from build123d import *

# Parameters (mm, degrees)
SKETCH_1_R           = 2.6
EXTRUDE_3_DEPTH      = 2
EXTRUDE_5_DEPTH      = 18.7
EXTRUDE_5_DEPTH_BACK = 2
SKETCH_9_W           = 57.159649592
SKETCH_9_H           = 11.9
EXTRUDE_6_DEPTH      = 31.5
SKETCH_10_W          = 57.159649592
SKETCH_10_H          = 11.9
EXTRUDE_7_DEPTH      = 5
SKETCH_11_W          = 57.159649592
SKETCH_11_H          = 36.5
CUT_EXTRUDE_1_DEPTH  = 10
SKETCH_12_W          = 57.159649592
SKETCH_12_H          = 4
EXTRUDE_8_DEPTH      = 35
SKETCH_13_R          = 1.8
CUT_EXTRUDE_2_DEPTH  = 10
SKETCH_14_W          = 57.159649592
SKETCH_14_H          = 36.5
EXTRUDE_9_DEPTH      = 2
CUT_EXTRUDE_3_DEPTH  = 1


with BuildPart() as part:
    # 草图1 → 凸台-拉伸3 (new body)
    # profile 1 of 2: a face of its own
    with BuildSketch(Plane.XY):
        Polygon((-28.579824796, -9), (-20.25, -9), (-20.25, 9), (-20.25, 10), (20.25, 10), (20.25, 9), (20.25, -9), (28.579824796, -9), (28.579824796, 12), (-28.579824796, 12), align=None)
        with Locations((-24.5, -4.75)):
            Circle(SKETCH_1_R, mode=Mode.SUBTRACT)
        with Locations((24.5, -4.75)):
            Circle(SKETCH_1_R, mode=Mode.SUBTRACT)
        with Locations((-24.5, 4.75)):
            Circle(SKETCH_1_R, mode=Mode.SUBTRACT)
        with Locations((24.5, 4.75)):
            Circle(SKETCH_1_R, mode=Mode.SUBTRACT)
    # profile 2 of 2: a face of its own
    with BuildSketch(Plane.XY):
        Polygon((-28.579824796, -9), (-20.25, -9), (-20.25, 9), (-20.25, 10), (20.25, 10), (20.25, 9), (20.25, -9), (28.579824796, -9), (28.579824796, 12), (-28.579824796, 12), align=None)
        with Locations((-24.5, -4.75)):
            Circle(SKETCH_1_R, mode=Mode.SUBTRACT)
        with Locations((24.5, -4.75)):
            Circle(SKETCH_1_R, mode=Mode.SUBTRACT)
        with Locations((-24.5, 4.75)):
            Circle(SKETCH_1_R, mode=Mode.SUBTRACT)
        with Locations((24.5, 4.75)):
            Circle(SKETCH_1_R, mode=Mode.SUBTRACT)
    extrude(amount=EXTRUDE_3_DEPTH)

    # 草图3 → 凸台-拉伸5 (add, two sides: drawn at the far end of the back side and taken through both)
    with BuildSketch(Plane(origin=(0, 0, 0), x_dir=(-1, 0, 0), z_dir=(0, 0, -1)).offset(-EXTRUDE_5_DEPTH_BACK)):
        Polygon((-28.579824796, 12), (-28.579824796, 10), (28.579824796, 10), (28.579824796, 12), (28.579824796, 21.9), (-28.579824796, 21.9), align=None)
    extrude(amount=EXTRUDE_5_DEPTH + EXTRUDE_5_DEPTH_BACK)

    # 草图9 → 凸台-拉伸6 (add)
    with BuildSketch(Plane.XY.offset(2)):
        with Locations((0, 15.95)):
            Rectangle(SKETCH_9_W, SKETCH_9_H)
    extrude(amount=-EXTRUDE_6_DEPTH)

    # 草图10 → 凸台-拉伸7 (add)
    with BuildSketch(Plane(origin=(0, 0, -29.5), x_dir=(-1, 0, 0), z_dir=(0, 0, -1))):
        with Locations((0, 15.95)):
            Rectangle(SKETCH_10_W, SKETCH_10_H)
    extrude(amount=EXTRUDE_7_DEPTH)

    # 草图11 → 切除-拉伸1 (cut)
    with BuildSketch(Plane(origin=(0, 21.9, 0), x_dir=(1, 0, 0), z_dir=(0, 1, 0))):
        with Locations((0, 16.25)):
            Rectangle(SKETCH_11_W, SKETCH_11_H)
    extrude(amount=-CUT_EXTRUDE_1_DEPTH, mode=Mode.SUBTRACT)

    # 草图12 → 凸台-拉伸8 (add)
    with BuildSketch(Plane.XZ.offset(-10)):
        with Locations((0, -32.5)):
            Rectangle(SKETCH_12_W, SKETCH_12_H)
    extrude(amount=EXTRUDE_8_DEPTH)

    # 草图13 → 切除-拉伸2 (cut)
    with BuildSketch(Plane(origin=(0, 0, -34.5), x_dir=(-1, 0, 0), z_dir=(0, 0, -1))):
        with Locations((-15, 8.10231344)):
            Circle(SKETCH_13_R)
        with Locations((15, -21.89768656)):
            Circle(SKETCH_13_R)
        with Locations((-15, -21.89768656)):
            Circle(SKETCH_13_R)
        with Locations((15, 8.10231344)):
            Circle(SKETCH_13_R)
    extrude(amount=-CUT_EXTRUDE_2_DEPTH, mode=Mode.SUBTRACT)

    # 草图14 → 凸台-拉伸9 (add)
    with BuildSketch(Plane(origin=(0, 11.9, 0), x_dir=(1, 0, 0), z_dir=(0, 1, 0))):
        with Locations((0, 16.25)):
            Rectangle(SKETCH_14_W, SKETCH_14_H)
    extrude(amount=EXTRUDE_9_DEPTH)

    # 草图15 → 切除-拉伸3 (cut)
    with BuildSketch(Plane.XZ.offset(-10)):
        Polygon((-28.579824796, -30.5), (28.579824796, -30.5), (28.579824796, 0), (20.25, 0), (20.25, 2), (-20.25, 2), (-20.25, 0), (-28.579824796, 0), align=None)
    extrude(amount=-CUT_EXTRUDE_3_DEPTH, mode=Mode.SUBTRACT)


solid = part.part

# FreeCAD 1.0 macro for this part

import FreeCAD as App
import Part
import Sketcher
Q = App.Units.Quantity

doc = App.newDocument("Part")
body = doc.addObject("PartDesign::Body", "Body")

# Sketch on XY plane
sketch1 = body.newObject("Sketcher::SketchObject", "Sketch")
sketch1.AttachmentSupport = (doc.getObject("XY_Plane"), [""])
sketch1.MapMode = "FlatFace"
sketch1.addGeometry([
    Part.LineSegment(App.Vector(-28.579825, -9, 0), App.Vector(-20.25, -9, 0)),  # 0
    Part.LineSegment(App.Vector(-20.25, -9, 0), App.Vector(-20.25, 10, 0)),  # 1
    Part.LineSegment(App.Vector(-20.25, 10, 0), App.Vector(20.25, 10, 0)),  # 2
    Part.LineSegment(App.Vector(20.25, 10, 0), App.Vector(20.25, -9, 0)),  # 3
    Part.LineSegment(App.Vector(20.25, -9, 0), App.Vector(28.579825, -9, 0)),  # 4
    Part.LineSegment(App.Vector(28.579825, -9, 0), App.Vector(28.579825, 12, 0)),  # 5
    Part.LineSegment(App.Vector(28.579825, 12, 0), App.Vector(-28.579825, 12, 0)),  # 6
    Part.LineSegment(App.Vector(-28.579825, 12, 0), App.Vector(-28.579825, -9, 0)),  # 7
    Part.Circle(App.Vector(-24.5, -4.75, 0), App.Vector(0, 0, 1), 2.6),  # 8
    Part.Circle(App.Vector(24.5, -4.75, 0), App.Vector(0, 0, 1), 2.6),  # 9
    Part.Circle(App.Vector(-24.5, 4.75, 0), App.Vector(0, 0, 1), 2.6),  # 10
    Part.Circle(App.Vector(24.5, 4.75, 0), App.Vector(0, 0, 1), 2.6),  # 11
], False)
sketch1.addConstraint([
    Sketcher.Constraint("Coincident", 0, 2, 1, 1),
    Sketcher.Constraint("Coincident", 1, 2, 2, 1),
    Sketcher.Constraint("Coincident", 2, 2, 3, 1),
    Sketcher.Constraint("Coincident", 3, 2, 4, 1),
    Sketcher.Constraint("Coincident", 4, 2, 5, 1),
    Sketcher.Constraint("Coincident", 5, 2, 6, 1),
    Sketcher.Constraint("Coincident", 6, 2, 7, 1),
    Sketcher.Constraint("Coincident", 7, 2, 0, 1),
    Sketcher.Constraint("Horizontal", 0),
    Sketcher.Constraint("Vertical", 1),
    Sketcher.Constraint("Horizontal", 2),
    Sketcher.Constraint("Vertical", 3),
    Sketcher.Constraint("Horizontal", 4),
    Sketcher.Constraint("Vertical", 5),
    Sketcher.Constraint("Horizontal", 6),
    Sketcher.Constraint("Vertical", 7),
    Sketcher.Constraint("Equal", 8, 9),
    Sketcher.Constraint("Equal", 9, 10),
    Sketcher.Constraint("Equal", 10, 11),
    Sketcher.Constraint("Symmetric", 9, 3, 10, 3, -1, 1),
    Sketcher.Constraint("Symmetric", 8, 3, 11, 3, -1, 1),
    Sketcher.Constraint("Symmetric", 8, 3, 9, 3, -2),
    Sketcher.Constraint("Symmetric", 0, 2, 3, 2, -2),
    Sketcher.Constraint("Equal", 0, 4),
    Sketcher.Constraint("Diameter", 8, Q("5.2 mm")),
    Sketcher.Constraint("DistanceY", 1, 1, 1, 2, Q("19 mm")),
    Sketcher.Constraint("DistanceY", 5, 1, 5, 2, Q("21 mm")),
    Sketcher.Constraint("DistanceX", 2, 1, 2, 2, Q("40.5 mm")),
    Sketcher.Constraint("DistanceY", 0, 2, -1, 1, Q("9 mm")),
    Sketcher.Constraint("DistanceX", 8, 3, 9, 3, Q("49 mm")),
    Sketcher.Constraint("DistanceY", 8, 3, 10, 3, Q("9.5 mm")),
    Sketcher.Constraint("DistanceX", 6, 2, 6, 1, Q("57.15965 mm")),
])
pad1 = body.newObject("PartDesign::Pad", "Pad")
pad1.Profile = sketch1
pad1.Length = 2

# Sketch on XY plane
sketch2 = body.newObject("Sketcher::SketchObject", "Sketch001")
sketch2.AttachmentSupport = (doc.getObject("XY_Plane"), [""])
sketch2.MapMode = "FlatFace"
sketch2.addGeometry([
    Part.LineSegment(App.Vector(28.579825, 10, 0), App.Vector(-28.579825, 10, 0)),
    Part.LineSegment(App.Vector(-28.579825, 10, 0), App.Vector(-28.579825, 21.9, 0)),
    Part.LineSegment(App.Vector(-28.579825, 21.9, 0), App.Vector(28.579825, 21.9, 0)),
    Part.LineSegment(App.Vector(28.579825, 21.9, 0), App.Vector(28.579825, 10, 0)),
], False)
sketch2.addConstraint([
    Sketcher.Constraint("Coincident", 0, 2, 1, 1),
    Sketcher.Constraint("Coincident", 1, 2, 2, 1),
    Sketcher.Constraint("Coincident", 2, 2, 3, 1),
    Sketcher.Constraint("Coincident", 3, 2, 0, 1),
    Sketcher.Constraint("Horizontal", 0),
    Sketcher.Constraint("Vertical", 1),
    Sketcher.Constraint("Horizontal", 2),
    Sketcher.Constraint("Vertical", 3),
    Sketcher.Constraint("DistanceY", 1, 1, 1, 2, Q("11.9 mm")),
    Sketcher.Constraint("DistanceY", -1, 1, 0, 2, Q("10 mm")),
    Sketcher.Constraint("DistanceX", 0, 2, 0, 1, Q("57.15965 mm")),
    Sketcher.Constraint("DistanceX", 0, 2, -1, 1, Q("28.579825 mm")),
])
pad2 = body.newObject("PartDesign::Pad", "Pad001")
pad2.Profile = sketch2
pad2.Type = "TwoLengths"
pad2.Length = 18.7
pad2.Length2 = 2
pad2.Reversed = True

# Sketch on XY plane
sketch3 = body.newObject("Sketcher::SketchObject", "Sketch002")
sketch3.AttachmentSupport = (doc.getObject("XY_Plane"), [""])
sketch3.MapMode = "FlatFace"
sketch3.AttachmentOffset = App.Placement(App.Vector(0, 0, 2), App.Rotation())
sketch3.addGeometry([
    Part.LineSegment(App.Vector(-28.579825, 21.9, 0), App.Vector(-28.579825, 10, 0)),
    Part.LineSegment(App.Vector(-28.579825, 10, 0), App.Vector(28.579825, 10, 0)),
    Part.LineSegment(App.Vector(28.579825, 10, 0), App.Vector(28.579825, 21.9, 0)),
    Part.LineSegment(App.Vector(28.579825, 21.9, 0), App.Vector(-28.579825, 21.9, 0)),
], False)
sketch3.addConstraint([
    Sketcher.Constraint("Coincident", 0, 2, 1, 1),
    Sketcher.Constraint("Coincident", 1, 2, 2, 1),
    Sketcher.Constraint("Coincident", 2, 2, 3, 1),
    Sketcher.Constraint("Coincident", 3, 2, 0, 1),
    Sketcher.Constraint("Vertical", 0),
    Sketcher.Constraint("Horizontal", 1),
    Sketcher.Constraint("Vertical", 2),
    Sketcher.Constraint("Horizontal", 3),
    Sketcher.Constraint("DistanceY", 0, 2, 0, 1, Q("11.9 mm")),
    Sketcher.Constraint("DistanceY", -1, 1, 0, 2, Q("10 mm")),
    Sketcher.Constraint("DistanceX", 1, 1, 1, 2, Q("57.15965 mm")),
    Sketcher.Constraint("DistanceX", 0, 2, -1, 1, Q("28.579825 mm")),
])
pad3 = body.newObject("PartDesign::Pad", "Pad002")
pad3.Profile = sketch3
pad3.Length = 31.5
pad3.Reversed = True

# Sketch on XY plane
sketch4 = body.newObject("Sketcher::SketchObject", "Sketch003")
sketch4.AttachmentSupport = (doc.getObject("XY_Plane"), [""])
sketch4.MapMode = "FlatFace"
sketch4.AttachmentOffset = App.Placement(App.Vector(0, 0, -29.5), App.Rotation())
sketch4.addGeometry([
    Part.LineSegment(App.Vector(28.579825, 21.9, 0), App.Vector(28.579825, 10, 0)),
    Part.LineSegment(App.Vector(28.579825, 10, 0), App.Vector(-28.579825, 10, 0)),
    Part.LineSegment(App.Vector(-28.579825, 10, 0), App.Vector(-28.579825, 21.9, 0)),
    Part.LineSegment(App.Vector(-28.579825, 21.9, 0), App.Vector(28.579825, 21.9, 0)),
], False)
sketch4.addConstraint([
    Sketcher.Constraint("Coincident", 0, 2, 1, 1),
    Sketcher.Constraint("Coincident", 1, 2, 2, 1),
    Sketcher.Constraint("Coincident", 2, 2, 3, 1),
    Sketcher.Constraint("Coincident", 3, 2, 0, 1),
    Sketcher.Constraint("Vertical", 0),
    Sketcher.Constraint("Horizontal", 1),
    Sketcher.Constraint("Vertical", 2),
    Sketcher.Constraint("Horizontal", 3),
    Sketcher.Constraint("DistanceY", 0, 2, 0, 1, Q("11.9 mm")),
    Sketcher.Constraint("DistanceY", -1, 1, 0, 2, Q("10 mm")),
    Sketcher.Constraint("DistanceX", 1, 2, 1, 1, Q("57.15965 mm")),
    Sketcher.Constraint("DistanceX", -1, 1, 0, 2, Q("28.579825 mm")),
])
pad4 = body.newObject("PartDesign::Pad", "Pad003")
pad4.Profile = sketch4
pad4.Length = 5
pad4.Reversed = True

# Sketch on XZ plane
sketch5 = body.newObject("Sketcher::SketchObject", "Sketch004")
sketch5.AttachmentSupport = (doc.getObject("XZ_Plane"), [""])
sketch5.MapMode = "FlatFace"
sketch5.AttachmentOffset = App.Placement(App.Vector(0, 0, -21.9), App.Rotation())
sketch5.addGeometry([
    Part.LineSegment(App.Vector(-28.579825, -34.5, 0), App.Vector(-28.579825, 2, 0)),
    Part.LineSegment(App.Vector(-28.579825, 2, 0), App.Vector(28.579825, 2, 0)),
    Part.LineSegment(App.Vector(28.579825, 2, 0), App.Vector(28.579825, -34.5, 0)),
    Part.LineSegment(App.Vector(28.579825, -34.5, 0), App.Vector(-28.579825, -34.5, 0)),
], False)
sketch5.addConstraint([
    Sketcher.Constraint("Coincident", 0, 2, 1, 1),
    Sketcher.Constraint("Coincident", 1, 2, 2, 1),
    Sketcher.Constraint("Coincident", 2, 2, 3, 1),
    Sketcher.Constraint("Coincident", 3, 2, 0, 1),
    Sketcher.Constraint("Vertical", 0),
    Sketcher.Constraint("Horizontal", 1),
    Sketcher.Constraint("Vertical", 2),
    Sketcher.Constraint("Horizontal", 3),
    Sketcher.Constraint("DistanceY", 0, 1, 0, 2, Q("36.5 mm")),
    Sketcher.Constraint("DistanceY", -1, 1, 0, 2, Q("2 mm")),
    Sketcher.Constraint("DistanceX", 1, 1, 1, 2, Q("57.15965 mm")),
    Sketcher.Constraint("DistanceX", 0, 2, -1, 1, Q("28.579825 mm")),
])
pocket1 = body.newObject("PartDesign::Pocket", "Pocket")
pocket1.Profile = sketch5
pocket1.Length = 10
pocket1.Reversed = True

# Sketch on XZ plane
sketch6 = body.newObject("Sketcher::SketchObject", "Sketch005")
sketch6.AttachmentSupport = (doc.getObject("XZ_Plane"), [""])
sketch6.MapMode = "FlatFace"
sketch6.AttachmentOffset = App.Placement(App.Vector(0, 0, -10), App.Rotation())
sketch6.addGeometry([
    Part.LineSegment(App.Vector(-28.579825, -30.5, 0), App.Vector(-28.579825, -34.5, 0)),
    Part.LineSegment(App.Vector(-28.579825, -34.5, 0), App.Vector(28.579825, -34.5, 0)),
    Part.LineSegment(App.Vector(28.579825, -34.5, 0), App.Vector(28.579825, -30.5, 0)),
    Part.LineSegment(App.Vector(28.579825, -30.5, 0), App.Vector(-28.579825, -30.5, 0)),
], False)
sketch6.addConstraint([
    Sketcher.Constraint("Coincident", 0, 2, 1, 1),
    Sketcher.Constraint("Coincident", 1, 2, 2, 1),
    Sketcher.Constraint("Coincident", 2, 2, 3, 1),
    Sketcher.Constraint("Coincident", 3, 2, 0, 1),
    Sketcher.Constraint("Vertical", 0),
    Sketcher.Constraint("Horizontal", 1),
    Sketcher.Constraint("Vertical", 2),
    Sketcher.Constraint("Horizontal", 3),
    Sketcher.Constraint("DistanceY", 0, 2, 0, 1, Q("4 mm")),
    Sketcher.Constraint("DistanceY", 0, 2, -1, 1, Q("34.5 mm")),
    Sketcher.Constraint("DistanceX", 1, 1, 1, 2, Q("57.15965 mm")),
    Sketcher.Constraint("DistanceX", 0, 2, -1, 1, Q("28.579825 mm")),
])
pad5 = body.newObject("PartDesign::Pad", "Pad004")
pad5.Profile = sketch6
pad5.Length = 35

# Sketch on XY plane
sketch7 = body.newObject("Sketcher::SketchObject", "Sketch006")
sketch7.AttachmentSupport = (doc.getObject("XY_Plane"), [""])
sketch7.MapMode = "FlatFace"
sketch7.AttachmentOffset = App.Placement(App.Vector(0, 0, -34.5), App.Rotation())
sketch7.addGeometry([
    Part.Circle(App.Vector(15, 8.102313, 0), App.Vector(0, 0, 1), 1.8),
    Part.Circle(App.Vector(-15, -21.897687, 0), App.Vector(0, 0, 1), 1.8),
    Part.Circle(App.Vector(15, -21.897687, 0), App.Vector(0, 0, 1), 1.8),
    Part.Circle(App.Vector(-15, 8.102313, 0), App.Vector(0, 0, 1), 1.8),
], False)
sketch7.addConstraint([
    Sketcher.Constraint("Equal", 0, 1),
    Sketcher.Constraint("Equal", 1, 2),
    Sketcher.Constraint("Equal", 2, 3),
    Sketcher.Constraint("Symmetric", 1, 3, 2, 3, -2),
    Sketcher.Constraint("Symmetric", 0, 3, 3, 3, -2),
    Sketcher.Constraint("Vertical", 0, 3, 2, 3),
    Sketcher.Constraint("Diameter", 0, Q("3.6 mm")),
    Sketcher.Constraint("DistanceX", -1, 1, 0, 3, Q("15 mm")),
    Sketcher.Constraint("DistanceY", 1, 3, 0, 3, Q("30 mm")),
    Sketcher.Constraint("DistanceY", -1, 1, 0, 3, Q("8.102313 mm")),
])
pocket2 = body.newObject("PartDesign::Pocket", "Pocket001")
pocket2.Profile = sketch7
pocket2.Length = 10
pocket2.Reversed = True

# Sketch on XZ plane
sketch8 = body.newObject("Sketcher::SketchObject", "Sketch007")
sketch8.AttachmentSupport = (doc.getObject("XZ_Plane"), [""])
sketch8.MapMode = "FlatFace"
sketch8.AttachmentOffset = App.Placement(App.Vector(0, 0, -11.9), App.Rotation())
sketch8.addGeometry([
    Part.LineSegment(App.Vector(-28.579825, -34.5, 0), App.Vector(-28.579825, 2, 0)),
    Part.LineSegment(App.Vector(-28.579825, 2, 0), App.Vector(28.579825, 2, 0)),
    Part.LineSegment(App.Vector(28.579825, 2, 0), App.Vector(28.579825, -34.5, 0)),
    Part.LineSegment(App.Vector(28.579825, -34.5, 0), App.Vector(-28.579825, -34.5, 0)),
], False)
sketch8.addConstraint([
    Sketcher.Constraint("Coincident", 0, 2, 1, 1),
    Sketcher.Constraint("Coincident", 1, 2, 2, 1),
    Sketcher.Constraint("Coincident", 2, 2, 3, 1),
    Sketcher.Constraint("Coincident", 3, 2, 0, 1),
    Sketcher.Constraint("Vertical", 0),
    Sketcher.Constraint("Horizontal", 1),
    Sketcher.Constraint("Vertical", 2),
    Sketcher.Constraint("Horizontal", 3),
    Sketcher.Constraint("DistanceY", 0, 1, 0, 2, Q("36.5 mm")),
    Sketcher.Constraint("DistanceY", -1, 1, 0, 2, Q("2 mm")),
    Sketcher.Constraint("DistanceX", 1, 1, 1, 2, Q("57.15965 mm")),
    Sketcher.Constraint("DistanceX", 0, 2, -1, 1, Q("28.579825 mm")),
])
pad6 = body.newObject("PartDesign::Pad", "Pad005")
pad6.Profile = sketch8
pad6.Length = 2
pad6.Reversed = True

# Sketch on XZ plane
sketch9 = body.newObject("Sketcher::SketchObject", "Sketch008")
sketch9.AttachmentSupport = (doc.getObject("XZ_Plane"), [""])
sketch9.MapMode = "FlatFace"
sketch9.AttachmentOffset = App.Placement(App.Vector(0, 0, -10), App.Rotation())
sketch9.addGeometry([
    Part.LineSegment(App.Vector(-28.579825, -30.5, 0), App.Vector(28.579825, -30.5, 0)),  # 0
    Part.LineSegment(App.Vector(28.579825, -30.5, 0), App.Vector(28.579825, 0, 0)),  # 1
    Part.LineSegment(App.Vector(28.579825, 0, 0), App.Vector(20.25, 0, 0)),  # 2
    Part.LineSegment(App.Vector(20.25, 0, 0), App.Vector(20.25, 2, 0)),  # 3
    Part.LineSegment(App.Vector(20.25, 2, 0), App.Vector(-20.25, 2, 0)),  # 4
    Part.LineSegment(App.Vector(-20.25, 2, 0), App.Vector(-20.25, 0, 0)),  # 5
    Part.LineSegment(App.Vector(-20.25, 0, 0), App.Vector(-28.579825, 0, 0)),  # 6
    Part.LineSegment(App.Vector(-28.579825, 0, 0), App.Vector(-28.579825, -30.5, 0)),  # 7
], False)
sketch9.addConstraint([
    Sketcher.Constraint("Coincident", 0, 2, 1, 1),
    Sketcher.Constraint("Coincident", 1, 2, 2, 1),
    Sketcher.Constraint("Coincident", 2, 2, 3, 1),
    Sketcher.Constraint("Coincident", 3, 2, 4, 1),
    Sketcher.Constraint("Coincident", 4, 2, 5, 1),
    Sketcher.Constraint("Coincident", 5, 2, 6, 1),
    Sketcher.Constraint("Coincident", 6, 2, 7, 1),
    Sketcher.Constraint("Coincident", 7, 2, 0, 1),
    Sketcher.Constraint("Horizontal", 0),
    Sketcher.Constraint("Vertical", 1),
    Sketcher.Constraint("Horizontal", 2),
    Sketcher.Constraint("Vertical", 3),
    Sketcher.Constraint("Horizontal", 4),
    Sketcher.Constraint("Vertical", 5),
    Sketcher.Constraint("Horizontal", 6),
    Sketcher.Constraint("Vertical", 7),
    Sketcher.Constraint("Symmetric", 2, 2, 5, 2, -1, 1),
    Sketcher.Constraint("Symmetric", 1, 2, 6, 2, -2),
    Sketcher.Constraint("DistanceY", 3, 1, 3, 2, Q("2 mm")),
    Sketcher.Constraint("DistanceX", 4, 2, 4, 1, Q("40.5 mm")),
    Sketcher.Constraint("DistanceY", 1, 1, 1, 2, Q("30.5 mm")),
    Sketcher.Constraint("DistanceX", 0, 1, 0, 2, Q("57.15965 mm")),
])
pocket3 = body.newObject("PartDesign::Pocket", "Pocket002")
pocket3.Profile = sketch9
pocket3.Length = 1

doc.recompute()
